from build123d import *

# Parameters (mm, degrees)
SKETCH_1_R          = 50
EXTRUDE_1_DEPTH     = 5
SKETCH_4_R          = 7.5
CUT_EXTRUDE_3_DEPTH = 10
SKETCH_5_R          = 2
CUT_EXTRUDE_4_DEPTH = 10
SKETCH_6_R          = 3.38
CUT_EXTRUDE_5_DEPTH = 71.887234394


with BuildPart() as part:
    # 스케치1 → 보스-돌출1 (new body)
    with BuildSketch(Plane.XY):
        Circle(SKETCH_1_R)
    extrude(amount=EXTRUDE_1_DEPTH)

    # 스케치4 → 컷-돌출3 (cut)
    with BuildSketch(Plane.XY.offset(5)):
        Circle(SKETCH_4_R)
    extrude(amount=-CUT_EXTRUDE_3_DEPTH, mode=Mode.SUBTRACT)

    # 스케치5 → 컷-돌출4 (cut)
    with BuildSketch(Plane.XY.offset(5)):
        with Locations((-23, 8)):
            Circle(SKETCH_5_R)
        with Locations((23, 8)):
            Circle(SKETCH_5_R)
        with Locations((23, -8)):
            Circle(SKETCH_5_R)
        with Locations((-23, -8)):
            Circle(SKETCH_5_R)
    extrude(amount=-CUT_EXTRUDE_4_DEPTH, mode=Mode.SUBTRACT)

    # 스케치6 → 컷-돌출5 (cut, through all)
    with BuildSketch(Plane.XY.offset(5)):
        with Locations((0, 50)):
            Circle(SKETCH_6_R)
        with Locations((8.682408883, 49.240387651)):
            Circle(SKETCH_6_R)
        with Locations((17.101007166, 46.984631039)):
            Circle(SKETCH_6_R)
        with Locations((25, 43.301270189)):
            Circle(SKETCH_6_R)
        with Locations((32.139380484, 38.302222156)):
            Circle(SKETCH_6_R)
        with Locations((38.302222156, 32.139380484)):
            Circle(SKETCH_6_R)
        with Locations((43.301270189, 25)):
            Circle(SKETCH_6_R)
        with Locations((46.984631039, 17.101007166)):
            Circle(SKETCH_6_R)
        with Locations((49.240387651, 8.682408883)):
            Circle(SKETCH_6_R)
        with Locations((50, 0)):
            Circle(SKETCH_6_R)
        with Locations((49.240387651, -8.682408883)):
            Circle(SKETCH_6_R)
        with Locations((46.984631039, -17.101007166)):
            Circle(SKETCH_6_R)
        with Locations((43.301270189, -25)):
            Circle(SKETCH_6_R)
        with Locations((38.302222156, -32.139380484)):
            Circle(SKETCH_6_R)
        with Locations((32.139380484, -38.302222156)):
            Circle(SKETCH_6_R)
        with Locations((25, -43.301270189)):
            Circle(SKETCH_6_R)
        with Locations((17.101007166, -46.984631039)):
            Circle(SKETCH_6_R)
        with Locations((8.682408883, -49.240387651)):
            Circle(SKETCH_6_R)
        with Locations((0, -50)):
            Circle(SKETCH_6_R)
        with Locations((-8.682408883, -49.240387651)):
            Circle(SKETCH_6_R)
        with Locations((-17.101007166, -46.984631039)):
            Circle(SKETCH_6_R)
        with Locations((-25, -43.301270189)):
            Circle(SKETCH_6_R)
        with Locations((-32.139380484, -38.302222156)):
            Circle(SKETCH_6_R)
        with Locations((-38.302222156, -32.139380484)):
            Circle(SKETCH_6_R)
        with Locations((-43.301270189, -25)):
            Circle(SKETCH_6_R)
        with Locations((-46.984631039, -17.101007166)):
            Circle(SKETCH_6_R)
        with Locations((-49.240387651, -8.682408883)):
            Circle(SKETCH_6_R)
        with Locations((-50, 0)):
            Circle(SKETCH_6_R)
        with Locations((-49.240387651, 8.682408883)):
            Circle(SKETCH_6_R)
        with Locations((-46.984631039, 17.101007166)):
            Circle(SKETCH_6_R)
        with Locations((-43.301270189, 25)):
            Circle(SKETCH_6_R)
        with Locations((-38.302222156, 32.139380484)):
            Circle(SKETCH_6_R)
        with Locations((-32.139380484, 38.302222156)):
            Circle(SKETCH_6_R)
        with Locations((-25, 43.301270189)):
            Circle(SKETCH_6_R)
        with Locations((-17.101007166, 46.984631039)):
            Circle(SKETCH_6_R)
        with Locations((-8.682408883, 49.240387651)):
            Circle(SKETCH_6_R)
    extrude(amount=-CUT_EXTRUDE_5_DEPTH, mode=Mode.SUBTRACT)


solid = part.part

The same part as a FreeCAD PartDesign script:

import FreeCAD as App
import Part
import Sketcher

V = App.Vector

doc = App.newDocument("Part")
params = doc.addObject("Spreadsheet::Sheet", "Params")
for row, (alias, value) in enumerate([
    ("sketch1_diameter", "100 mm"),
    ("pad1_length", "5 mm"),
    ("sketch2_diameter", "15 mm"),
    ("pocket1_length", "10 mm"),
    ("sketch3_diameter", "4 mm"),
    ("pocket2_length", "10 mm"),
    ("sketch4_diameter", "6.76 mm"),
], start=1):
    params.set(f"A{row}", alias)
    params.set(f"B{row}", "=" + value)
    params.setAlias(f"B{row}", alias)

body = doc.addObject("PartDesign::Body", "Body")

# Sketch on XY plane
sketch1 = body.newObject("Sketcher::SketchObject", "Sketch")
sketch1.AttachmentSupport = (doc.getObject("XY_Plane"), [""])
sketch1.MapMode = "FlatFace"
sketch1.addGeometry(Part.Circle(V(0, 0, 0), V(0, 0, 1), 50), False)
sketch1.addConstraint(Sketcher.Constraint("Coincident", 0, 3, -1, 1))
sketch1.addConstraint(Sketcher.Constraint("Diameter", 0, 100.0))
sketch1.setExpression("Constraints[1]", "Params.sketch1_diameter")
pad1 = body.newObject("PartDesign::Pad", "Pad")
pad1.Profile = sketch1
pad1.setExpression("Length", "Params.pad1_length")

# Sketch on XY plane
sketch2 = body.newObject("Sketcher::SketchObject", "Sketch001")
sketch2.AttachmentSupport = (doc.getObject("XY_Plane"), [""])
sketch2.MapMode = "FlatFace"
sketch2.AttachmentOffset = App.Placement(V(0, 0, 5), App.Rotation())
sketch2.addGeometry(Part.Circle(V(0, 0, 0), V(0, 0, 1), 8), False)
sketch2.addConstraint(Sketcher.Constraint("Coincident", 0, 3, -1, 1))
sketch2.addConstraint(Sketcher.Constraint("Diameter", 0, 15.0))
sketch2.setExpression("Constraints[1]", "Params.sketch2_diameter")
pocket1 = body.newObject("PartDesign::Pocket", "Pocket")
pocket1.Profile = sketch2
pocket1.setExpression("Length", "Params.pocket1_length")

# Sketch on XY plane
sketch3 = body.newObject("Sketcher::SketchObject", "Sketch002")
sketch3.AttachmentSupport = (doc.getObject("XY_Plane"), [""])
sketch3.MapMode = "FlatFace"
sketch3.AttachmentOffset = App.Placement(V(0, 0, 5), App.Rotation())
sketch3.addGeometry(Part.Circle(V(-23, 8, 0), V(0, 0, 1), 2), False)
sketch3.addGeometry(Part.Circle(V(23, 8, 0), V(0, 0, 1), 2), False)
sketch3.addGeometry(Part.Circle(V(23, -8, 0), V(0, 0, 1), 2), False)
sketch3.addGeometry(Part.Circle(V(-23, -8, 0), V(0, 0, 1), 2), False)
sketch3.addConstraint(Sketcher.Constraint("Equal", 0, 1))
sketch3.addConstraint(Sketcher.Constraint("Equal", 1, 2))
sketch3.addConstraint(Sketcher.Constraint("Equal", 2, 3))
sketch3.addConstraint(Sketcher.Constraint("Symmetric", 0, 3, 2, 3, -1, 1))
sketch3.addConstraint(Sketcher.Constraint("Symmetric", 1, 3, 3, 3, -1, 1))
sketch3.addConstraint(Sketcher.Constraint("Symmetric", 0, 3, 1, 3, -2))
sketch3.addConstraint(Sketcher.Constraint("Diameter", 0, 4.0))
sketch3.addConstraint(Sketcher.Constraint("DistanceX", 0, 3, -1, 1, 23.0))
sketch3.addConstraint(Sketcher.Constraint("DistanceY", -1, 1, 0, 3, 8.0))
sketch3.setExpression("Constraints[6]", "Params.sketch3_diameter")
pocket2 = body.newObject("PartDesign::Pocket", "Pocket001")
pocket2.Profile = sketch3
pocket2.setExpression("Length", "Params.pocket2_length")

# Sketch on XY plane
sketch4 = body.newObject("Sketcher::SketchObject", "Sketch003")
sketch4.AttachmentSupport = (doc.getObject("XY_Plane"), [""])
sketch4.MapMode = "FlatFace"
sketch4.AttachmentOffset = App.Placement(V(0, 0, 5), App.Rotation())
sketch4.addGeometry(Part.Circle(V(0, 50, 0), V(0, 0, 1), 3.4), False)
sketch4.addGeometry(Part.Circle(V(8.7, 49.2, 0), V(0, 0, 1), 3.4), False)
sketch4.addGeometry(Part.Circle(V(17.1, 47, 0), V(0, 0, 1), 3.4), False)
sketch4.addGeometry(Part.Circle(V(25, 43.3, 0), V(0, 0, 1), 3.4), False)
sketch4.addGeometry(Part.Circle(V(32.1, 38.3, 0), V(0, 0, 1), 3.4), False)
sketch4.addGeometry(Part.Circle(V(38.3, 32.1, 0), V(0, 0, 1), 3.4), False)
sketch4.addGeometry(Part.Circle(V(43.3, 25, 0), V(0, 0, 1), 3.4), False)
sketch4.addGeometry(Part.Circle(V(47, 17.1, 0), V(0, 0, 1), 3.4), False)
sketch4.addGeometry(Part.Circle(V(49.2, 8.7, 0), V(0, 0, 1), 3.4), False)
sketch4.addGeometry(Part.Circle(V(50, 0, 0), V(0, 0, 1), 3.4), False)
sketch4.addGeometry(Part.Circle(V(49.2, -8.7, 0), V(0, 0, 1), 3.4), False)
sketch4.addGeometry(Part.Circle(V(47, -17.1, 0), V(0, 0, 1), 3.4), False)
sketch4.addGeometry(Part.Circle(V(43.3, -25, 0), V(0, 0, 1), 3.4), False)
sketch4.addGeometry(Part.Circle(V(38.3, -32.1, 0), V(0, 0, 1), 3.4), False)
sketch4.addGeometry(Part.Circle(V(32.1, -38.3, 0), V(0, 0, 1), 3.4), False)
sketch4.addGeometry(Part.Circle(V(25, -43.3, 0), V(0, 0, 1), 3.4), False)
sketch4.addGeometry(Part.Circle(V(17.1, -47, 0), V(0, 0, 1), 3.4), False)
sketch4.addGeometry(Part.Circle(V(8.7, -49.2, 0), V(0, 0, 1), 3.4), False)
sketch4.addGeometry(Part.Circle(V(0, -50, 0), V(0, 0, 1), 3.4), False)
sketch4.addGeometry(Part.Circle(V(-8.7, -49.2, 0), V(0, 0, 1), 3.4), False)
sketch4.addGeometry(Part.Circle(V(-17.1, -47, 0), V(0, 0, 1), 3.4), False)
sketch4.addGeometry(Part.Circle(V(-25, -43.3, 0), V(0, 0, 1), 3.4), False)
sketch4.addGeometry(Part.Circle(V(-32.1, -38.3, 0), V(0, 0, 1), 3.4), False)
sketch4.addGeometry(Part.Circle(V(-38.3, -32.1, 0), V(0, 0, 1), 3.4), False)
sketch4.addGeometry(Part.Circle(V(-43.3, -25, 0), V(0, 0, 1), 3.4), False)
sketch4.addGeometry(Part.Circle(V(-47, -17.1, 0), V(0, 0, 1), 3.4), False)
sketch4.addGeometry(Part.Circle(V(-49.2, -8.7, 0), V(0, 0, 1), 3.4), False)
sketch4.addGeometry(Part.Circle(V(-50, 0, 0), V(0, 0, 1), 3.4), False)
sketch4.addGeometry(Part.Circle(V(-49.2, 8.7, 0), V(0, 0, 1), 3.4), False)
sketch4.addGeometry(Part.Circle(V(-47, 17.1, 0), V(0, 0, 1), 3.4), False)
sketch4.addGeometry(Part.Circle(V(-43.3, 25, 0), V(0, 0, 1), 3.4), False)
sketch4.addGeometry(Part.Circle(V(-38.3, 32.1, 0), V(0, 0, 1), 3.4), False)
sketch4.addGeometry(Part.Circle(V(-32.1, 38.3, 0), V(0, 0, 1), 3.4), False)
sketch4.addGeometry(Part.Circle(V(-25, 43.3, 0), V(0, 0, 1), 3.4), False)
sketch4.addGeometry(Part.Circle(V(-17.1, 47, 0), V(0, 0, 1), 3.4), False)
sketch4.addGeometry(Part.Circle(V(-8.7, 49.2, 0), V(0, 0, 1), 3.4), False)
sketch4.addConstraint(Sketcher.Constraint("Equal", 0, 1))
sketch4.addConstraint(Sketcher.Constraint("Equal", 1, 2))
sketch4.addConstraint(Sketcher.Constraint("Equal", 2, 3))
sketch4.addConstraint(Sketcher.Constraint("Equal", 3, 4))
sketch4.addConstraint(Sketcher.Constraint("Equal", 4, 5))
sketch4.addConstraint(Sketcher.Constraint("Equal", 5, 6))
sketch4.addConstraint(Sketcher.Constraint("Equal", 6, 7))
sketch4.addConstraint(Sketcher.Constraint("Equal", 7, 8))
sketch4.addConstraint(Sketcher.Constraint("Equal", 8, 9))
sketch4.addConstraint(Sketcher.Constraint("Equal", 9, 10))
sketch4.addConstraint(Sketcher.Constraint("Equal", 10, 11))
sketch4.addConstraint(Sketcher.Constraint("Equal", 11, 12))
sketch4.addConstraint(Sketcher.Constraint("Equal", 12, 13))
sketch4.addConstraint(Sketcher.Constraint("Equal", 13, 14))
sketch4.addConstraint(Sketcher.Constraint("Equal", 14, 15))
sketch4.addConstraint(Sketcher.Constraint("Equal", 15, 16))
sketch4.addConstraint(Sketcher.Constraint("Equal", 16, 17))
sketch4.addConstraint(Sketcher.Constraint("Equal", 17, 18))
sketch4.addConstraint(Sketcher.Constraint("Equal", 18, 19))
sketch4.addConstraint(Sketcher.Constraint("Equal", 19, 20))
sketch4.addConstraint(Sketcher.Constraint("Equal", 20, 21))
sketch4.addConstraint(Sketcher.Constraint("Equal", 21, 22))
sketch4.addConstraint(Sketcher.Constraint("Equal", 22, 23))
sketch4.addConstraint(Sketcher.Constraint("Equal", 23, 24))
sketch4.addConstraint(Sketcher.Constraint("Equal", 24, 25))
sketch4.addConstraint(Sketcher.Constraint("Equal", 25, 26))
sketch4.addConstraint(Sketcher.Constraint("Equal", 26, 27))
sketch4.addConstraint(Sketcher.Constraint("Equal", 27, 28))
sketch4.addConstraint(Sketcher.Constraint("Equal", 28, 29))
sketch4.addConstraint(Sketcher.Constraint("Equal", 29, 30))
sketch4.addConstraint(Sketcher.Constraint("Equal", 30, 31))
sketch4.addConstraint(Sketcher.Constraint("Equal", 31, 32))
sketch4.addConstraint(Sketcher.Constraint("Equal", 32, 33))
sketch4.addConstraint(Sketcher.Constraint("Equal", 33, 34))
sketch4.addConstraint(Sketcher.Constraint("Equal", 34, 35))
sketch4.addConstraint(Sketcher.Constraint("Symmetric", 0, 3, 18, 3, -1, 1))
sketch4.addConstraint(Sketcher.Constraint("Symmetric", 1, 3, 19, 3, -1, 1))
sketch4.addConstraint(Sketcher.Constraint("Symmetric", 2, 3, 20, 3, -1, 1))
sketch4.addConstraint(Sketcher.Constraint("Symmetric", 3, 3, 21, 3, -1, 1))
sketch4.addConstraint(Sketcher.Constraint("Symmetric", 4, 3, 22, 3, -1, 1))
sketch4.addConstraint(Sketcher.Constraint("Symmetric", 5, 3, 23, 3, -1, 1))
sketch4.addConstraint(Sketcher.Constraint("Symmetric", 6, 3, 24, 3, -1, 1))
sketch4.addConstraint(Sketcher.Constraint("Symmetric", 7, 3, 25, 3, -1, 1))
sketch4.addConstraint(Sketcher.Constraint("Symmetric", 8, 3, 26, 3, -1, 1))
sketch4.addConstraint(Sketcher.Constraint("Symmetric", 9, 3, 27, 3, -1, 1))
sketch4.addConstraint(Sketcher.Constraint("Symmetric", 10, 3, 28, 3, -1, 1))
sketch4.addConstraint(Sketcher.Constraint("Symmetric", 11, 3, 29, 3, -1, 1))
sketch4.addConstraint(Sketcher.Constraint("Symmetric", 12, 3, 30, 3, -1, 1))
sketch4.addConstraint(Sketcher.Constraint("Symmetric", 13, 3, 31, 3, -1, 1))
sketch4.addConstraint(Sketcher.Constraint("Symmetric", 14, 3, 32, 3, -1, 1))
sketch4.addConstraint(Sketcher.Constraint("Symmetric", 15, 3, 33, 3, -1, 1))
sketch4.addConstraint(Sketcher.Constraint("Symmetric", 16, 3, 34, 3, -1, 1))
sketch4.addConstraint(Sketcher.Constraint("Symmetric", 17, 3, 35, 3, -1, 1))
sketch4.addConstraint(Sketcher.Constraint("Symmetric", 17, 3, 19, 3, -2))
sketch4.addConstraint(Sketcher.Constraint("Symmetric", 16, 3, 20, 3, -2))
sketch4.addConstraint(Sketcher.Constraint("Symmetric", 15, 3, 21, 3, -2))
sketch4.addConstraint(Sketcher.Constraint("Symmetric", 14, 3, 22, 3, -2))
sketch4.addConstraint(Sketcher.Constraint("Symmetric", 13, 3, 23, 3, -2))
sketch4.addConstraint(Sketcher.Constraint("Symmetric", 12, 3, 24, 3, -2))
sketch4.addConstraint(Sketcher.Constraint("Symmetric", 11, 3, 25, 3, -2))
sketch4.addConstraint(Sketcher.Constraint("Symmetric", 10, 3, 26, 3, -2))
sketch4.addConstraint(Sketcher.Constraint("PointOnObject", 0, 3, -2))
sketch4.addConstraint(Sketcher.Constraint("PointOnObject", 9, 3, -1))
sketch4.addConstraint(Sketcher.Constraint("Diameter", 0, 6.76))
sketch4.addConstraint(Sketcher.Constraint("DistanceY", -1, 1, 0, 3, 50.0))
sketch4.addConstraint(Sketcher.Constraint("DistanceX", -1, 1, 3, 3, 25.0))
sketch4.addConstraint(Sketcher.Constraint("DistanceY", -1, 1, 6, 3, 25.0))
sketch4.addConstraint(Sketcher.Constraint("DistanceX", -1, 1, 9, 3, 50.0))
sketch4.addConstraint(Sketcher.Constraint("DistanceX", 1, 3, 2, 3, 8.418598))
sketch4.addConstraint(Sketcher.Constraint("DistanceY", 8, 3, 7, 3, 8.418598))
sketch4.addConstraint(Sketcher.Constraint("DistanceX", -1, 1, 1, 3, 8.682409))
sketch4.addConstraint(Sketcher.Constraint("DistanceY", -1, 1, 2, 3, 46.984631))
sketch4.addConstraint(Sketcher.Constraint("DistanceY", -1, 1, 3, 3, 43.30127))
sketch4.addConstraint(Sketcher.Constraint("DistanceX", -1, 1, 4, 3, 32.13938))
sketch4.addConstraint(Sketcher.Constraint("DistanceY", -1, 1, 5, 3, 32.13938))
sketch4.addConstraint(Sketcher.Constraint("DistanceX", -1, 1, 6, 3, 43.30127))
sketch4.addConstraint(Sketcher.Constraint("DistanceX", -1, 1, 7, 3, 46.984631))
sketch4.addConstraint(Sketcher.Constraint("DistanceY", -1, 1, 8, 3, 8.682409))
sketch4.addConstraint(Sketcher.Constraint("DistanceY", 4, 3, 3, 3, 4.999048))
sketch4.addConstraint(Sketcher.Constraint("DistanceX", 4, 3, 5, 3, 6.162842))
sketch4.addConstraint(Sketcher.Constraint("DistanceY", -1, 1, 1, 3, 49.240388))
sketch4.addConstraint(Sketcher.Constraint("DistanceX", -1, 1, 8, 3, 49.240388))
sketch4.setExpression("Constraints[63]", "Params.sketch4_diameter")
pocket3 = body.newObject("PartDesign::Pocket", "Pocket002")
pocket3.Profile = sketch4
pocket3.Type = "ThroughAll"

doc.recompute()
